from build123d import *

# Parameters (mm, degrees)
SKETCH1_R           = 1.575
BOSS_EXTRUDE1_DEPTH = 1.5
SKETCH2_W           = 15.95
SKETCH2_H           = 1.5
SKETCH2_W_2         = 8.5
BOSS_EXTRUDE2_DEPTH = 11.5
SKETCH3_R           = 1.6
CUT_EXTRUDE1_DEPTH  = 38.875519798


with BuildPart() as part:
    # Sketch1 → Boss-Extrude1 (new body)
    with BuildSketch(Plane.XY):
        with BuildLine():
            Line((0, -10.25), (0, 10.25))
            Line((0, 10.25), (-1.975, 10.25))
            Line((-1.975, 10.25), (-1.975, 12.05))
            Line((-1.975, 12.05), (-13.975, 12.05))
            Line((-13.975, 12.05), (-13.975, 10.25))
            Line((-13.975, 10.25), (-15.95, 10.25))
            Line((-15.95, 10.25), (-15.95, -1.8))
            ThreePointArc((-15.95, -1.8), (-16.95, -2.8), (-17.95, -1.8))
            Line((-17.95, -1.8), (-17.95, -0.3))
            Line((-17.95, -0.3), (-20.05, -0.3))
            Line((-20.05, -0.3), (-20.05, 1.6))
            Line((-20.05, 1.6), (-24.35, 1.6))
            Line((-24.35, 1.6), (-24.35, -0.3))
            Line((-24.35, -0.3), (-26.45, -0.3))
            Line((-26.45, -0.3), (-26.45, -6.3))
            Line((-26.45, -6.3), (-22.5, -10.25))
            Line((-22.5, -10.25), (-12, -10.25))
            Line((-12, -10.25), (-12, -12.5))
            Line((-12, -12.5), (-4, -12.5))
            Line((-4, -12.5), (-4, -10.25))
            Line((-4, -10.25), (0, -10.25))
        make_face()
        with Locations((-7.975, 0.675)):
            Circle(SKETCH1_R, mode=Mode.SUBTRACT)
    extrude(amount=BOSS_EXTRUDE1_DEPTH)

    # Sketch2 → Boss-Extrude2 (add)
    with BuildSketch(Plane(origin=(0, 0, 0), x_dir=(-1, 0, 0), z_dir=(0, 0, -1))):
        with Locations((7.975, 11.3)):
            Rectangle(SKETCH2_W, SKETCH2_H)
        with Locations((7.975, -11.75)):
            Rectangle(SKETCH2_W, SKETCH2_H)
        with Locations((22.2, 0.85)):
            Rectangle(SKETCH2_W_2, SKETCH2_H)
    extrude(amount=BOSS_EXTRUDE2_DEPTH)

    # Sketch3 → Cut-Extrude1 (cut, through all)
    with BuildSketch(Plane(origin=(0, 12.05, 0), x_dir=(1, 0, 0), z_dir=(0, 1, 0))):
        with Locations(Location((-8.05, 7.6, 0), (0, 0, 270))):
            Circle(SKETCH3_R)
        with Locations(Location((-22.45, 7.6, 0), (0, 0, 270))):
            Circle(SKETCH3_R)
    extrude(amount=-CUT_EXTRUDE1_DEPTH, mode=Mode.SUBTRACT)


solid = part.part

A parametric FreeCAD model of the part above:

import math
import FreeCAD as App
import Part
import Sketcher
Q = App.Units.Quantity

doc = App.newDocument("Part")
params = doc.addObject("Spreadsheet::Sheet", "Params")
for row, (alias, value) in enumerate([
    ("sketch1_radius", "1 mm"),
    ("sketch1_diameter", "3.15 mm"),
    ("sketch1_width", "12 mm"),
    ("sketch1_width2", "8 mm"),
    ("sketch1_width3", "4 mm"),
    ("pad1_length", "1.5 mm"),
    ("sketch2_width", "8.5 mm"),
    ("sketch2_height", "1.5 mm"),
    ("sketch2_width2", "15.95 mm"),
    ("pad2_length", "11.5 mm"),
    ("sketch3_diameter", "3.2 mm"),
], start=1):
    params.set(f"A{row}", alias)
    params.set(f"B{row}", "=" + value)
    params.setAlias(f"B{row}", alias)

body = doc.addObject("PartDesign::Body", "Body")

sketch1 = body.newObject("Sketcher::SketchObject", "Sketch")
sketch1.AttachmentSupport = (doc.getObject("XY_Plane"), [""])
sketch1.MapMode = "FlatFace"
sketch1.addGeometry([
    Part.LineSegment(App.Vector(0, -10.25, 0), App.Vector(0, 10.25, 0)),
    Part.LineSegment(App.Vector(0, 10.25, 0), App.Vector(-1.975, 10.25, 0)),
    Part.LineSegment(App.Vector(-1.975, 10.25, 0), App.Vector(-1.975, 12.05, 0)),
    Part.LineSegment(App.Vector(-1.975, 12.05, 0), App.Vector(-13.975, 12.05, 0)),
    Part.LineSegment(App.Vector(-13.975, 12.05, 0), App.Vector(-13.975, 10.25, 0)),
    Part.LineSegment(App.Vector(-13.975, 10.25, 0), App.Vector(-15.95, 10.25, 0)),
    Part.LineSegment(App.Vector(-15.95, 10.25, 0), App.Vector(-15.95, -1.8, 0)),
    Part.ArcOfCircle(Part.Circle(App.Vector(-16.95, -1.8, 0), App.Vector(0, 0, 1), 1), math.radians(180), math.radians(360)),
    Part.LineSegment(App.Vector(-17.95, -1.8, 0), App.Vector(-17.95, -0.3, 0)),
    Part.LineSegment(App.Vector(-17.95, -0.3, 0), App.Vector(-20.05, -0.3, 0)),
    Part.LineSegment(App.Vector(-20.05, -0.3, 0), App.Vector(-20.05, 1.6, 0)),
    Part.LineSegment(App.Vector(-20.05, 1.6, 0), App.Vector(-24.35, 1.6, 0)),
    Part.LineSegment(App.Vector(-24.35, 1.6, 0), App.Vector(-24.35, -0.3, 0)),
    Part.LineSegment(App.Vector(-24.35, -0.3, 0), App.Vector(-26.45, -0.3, 0)),
    Part.LineSegment(App.Vector(-26.45, -0.3, 0), App.Vector(-26.45, -6.3, 0)),
    Part.LineSegment(App.Vector(-26.45, -6.3, 0), App.Vector(-22.5, -10.25, 0)),
    Part.LineSegment(App.Vector(-22.5, -10.25, 0), App.Vector(-12, -10.25, 0)),
    Part.LineSegment(App.Vector(-12, -10.25, 0), App.Vector(-12, -12.5, 0)),
    Part.LineSegment(App.Vector(-12, -12.5, 0), App.Vector(-4, -12.5, 0)),
    Part.LineSegment(App.Vector(-4, -12.5, 0), App.Vector(-4, -10.25, 0)),
    Part.LineSegment(App.Vector(-4, -10.25, 0), App.Vector(0, -10.25, 0)),
    Part.Circle(App.Vector(-7.975, 0.675, 0), App.Vector(0, 0, 1), 1.575),
], False)
sketch1.addConstraint([
    Sketcher.Constraint("Coincident", 0, 2, 1, 1),
    Sketcher.Constraint("Coincident", 1, 2, 2, 1),
    Sketcher.Constraint("Coincident", 2, 2, 3, 1),
    Sketcher.Constraint("Coincident", 3, 2, 4, 1),
    Sketcher.Constraint("Coincident", 4, 2, 5, 1),
    Sketcher.Constraint("Coincident", 5, 2, 6, 1),
    Sketcher.Constraint("Tangent", 6, 2, 7, 2),
    Sketcher.Constraint("Tangent", 7, 1, 8, 1),
    Sketcher.Constraint("Coincident", 8, 2, 9, 1),
    Sketcher.Constraint("Coincident", 9, 2, 10, 1),
    Sketcher.Constraint("Coincident", 10, 2, 11, 1),
    Sketcher.Constraint("Coincident", 11, 2, 12, 1),
    Sketcher.Constraint("Coincident", 12, 2, 13, 1),
    Sketcher.Constraint("Coincident", 13, 2, 14, 1),
    Sketcher.Constraint("Coincident", 14, 2, 15, 1),
    Sketcher.Constraint("Coincident", 15, 2, 16, 1),
    Sketcher.Constraint("Coincident", 16, 2, 17, 1),
    Sketcher.Constraint("Coincident", 17, 2, 18, 1),
    Sketcher.Constraint("Coincident", 18, 2, 19, 1),
    Sketcher.Constraint("Coincident", 19, 2, 20, 1),
    Sketcher.Constraint("Coincident", 20, 2, 0, 1),
    Sketcher.Constraint("Vertical", 0),
    Sketcher.Constraint("Horizontal", 1),
    Sketcher.Constraint("Vertical", 2),
    Sketcher.Constraint("Horizontal", 3),
    Sketcher.Constraint("Vertical", 4),
    Sketcher.Constraint("Horizontal", 5),
    Sketcher.Constraint("Vertical", 6),
    Sketcher.Constraint("Vertical", 8),
    Sketcher.Constraint("Horizontal", 9),
    Sketcher.Constraint("Vertical", 10),
    Sketcher.Constraint("Horizontal", 11),
    Sketcher.Constraint("Vertical", 12),
    Sketcher.Constraint("Horizontal", 13),
    Sketcher.Constraint("Vertical", 14),
    Sketcher.Constraint("Horizontal", 16),
    Sketcher.Constraint("Vertical", 17),
    Sketcher.Constraint("Horizontal", 18),
    Sketcher.Constraint("Vertical", 19),
    Sketcher.Constraint("Horizontal", 20),
    Sketcher.Constraint("Symmetric", 0, 2, 20, 2, -1, 1),
    Sketcher.Constraint("Horizontal", 1, 2, 4, 2),
    Sketcher.Constraint("Horizontal", 9, 2, 12, 2),
    Sketcher.Constraint("Horizontal", 16, 2, 19, 2),
    Sketcher.Constraint("Equal", 1, 5),
    Sketcher.Constraint("Equal", 9, 13),
    Sketcher.Constraint("Radius", 7, 1.0),
    Sketcher.Constraint("Diameter", 21, 3.15),
    Sketcher.Constraint("DistanceX", 3, 2, 3, 1, 12.0),
    Sketcher.Constraint("DistanceX", 18, 1, 18, 2, 8.0),
    Sketcher.Constraint("DistanceX", 20, 1, 20, 2, 4.0),
    Sketcher.Constraint("DistanceY", 14, 2, 14, 1, 6.0),
    Sketcher.Constraint("Angle", 15, Q("-45 deg")),
    Sketcher.Constraint("DistanceX", 9, 2, 9, 1, 2.1),
    Sketcher.Constraint("DistanceX", 11, 2, 11, 1, 4.3),
    Sketcher.Constraint("DistanceX", 16, 1, 16, 2, 10.5),
    Sketcher.Constraint("DistanceY", 0, 1, 0, 2, 20.5),
    Sketcher.Constraint("DistanceY", 2, 1, 2, 2, 1.8),
    Sketcher.Constraint("DistanceY", 8, 1, 8, 2, 1.5),
    Sketcher.Constraint("DistanceY", 10, 1, 10, 2, 1.9),
    Sketcher.Constraint("DistanceX", 21, 3, 1, 2, 6.0),
    Sketcher.Constraint("DistanceY", 6, 2, 6, 1, 12.05),
    Sketcher.Constraint("DistanceY", 17, 2, 17, 1, 2.25),
    Sketcher.Constraint("DistanceY", -1, 1, 21, 3, 0.675),
])
sketch1.setExpression("Constraints[46]", "Params.sketch1_radius")
sketch1.setExpression("Constraints[47]", "Params.sketch1_diameter")
sketch1.setExpression("Constraints[48]", "Params.sketch1_width")
sketch1.setExpression("Constraints[49]", "Params.sketch1_width2")
sketch1.setExpression("Constraints[50]", "Params.sketch1_width3")
pad1 = body.newObject("PartDesign::Pad", "Pad")
pad1.Profile = sketch1
pad1.setExpression("Length", "Params.pad1_length")

sketch2 = body.newObject("Sketcher::SketchObject", "Sketch001")
sketch2.AttachmentSupport = (doc.getObject("XY_Plane"), [""])
sketch2.MapMode = "FlatFace"
sketch2.addGeometry([
    Part.LineSegment(App.Vector(0, 12.05, 0), App.Vector(0, 10.55, 0)),
    Part.LineSegment(App.Vector(0, 10.55, 0), App.Vector(-15.95, 10.55, 0)),
    Part.LineSegment(App.Vector(-15.95, 10.55, 0), App.Vector(-15.95, 12.05, 0)),
    Part.LineSegment(App.Vector(-15.95, 12.05, 0), App.Vector(0, 12.05, 0)),
    Part.LineSegment(App.Vector(0, -11, 0), App.Vector(0, -12.5, 0)),
    Part.LineSegment(App.Vector(0, -12.5, 0), App.Vector(-15.95, -12.5, 0)),
    Part.LineSegment(App.Vector(-15.95, -12.5, 0), App.Vector(-15.95, -11, 0)),
    Part.LineSegment(App.Vector(-15.95, -11, 0), App.Vector(0, -11, 0)),
    Part.LineSegment(App.Vector(-17.95, 1.6, 0), App.Vector(-17.95, 0.1, 0)),
    Part.LineSegment(App.Vector(-17.95, 0.1, 0), App.Vector(-26.45, 0.1, 0)),
    Part.LineSegment(App.Vector(-26.45, 0.1, 0), App.Vector(-26.45, 1.6, 0)),
    Part.LineSegment(App.Vector(-26.45, 1.6, 0), App.Vector(-17.95, 1.6, 0)),
], False)
sketch2.addConstraint([
    Sketcher.Constraint("Coincident", 0, 2, 1, 1),
    Sketcher.Constraint("Coincident", 1, 2, 2, 1),
    Sketcher.Constraint("Coincident", 2, 2, 3, 1),
    Sketcher.Constraint("Coincident", 3, 2, 0, 1),
    Sketcher.Constraint("Coincident", 4, 2, 5, 1),
    Sketcher.Constraint("Coincident", 5, 2, 6, 1),
    Sketcher.Constraint("Coincident", 6, 2, 7, 1),
    Sketcher.Constraint("Coincident", 7, 2, 4, 1),
    Sketcher.Constraint("Coincident", 8, 2, 9, 1),
    Sketcher.Constraint("Coincident", 9, 2, 10, 1),
    Sketcher.Constraint("Coincident", 10, 2, 11, 1),
    Sketcher.Constraint("Coincident", 11, 2, 8, 1),
    Sketcher.Constraint("Vertical", 0),
    Sketcher.Constraint("Horizontal", 1),
    Sketcher.Constraint("Vertical", 2),
    Sketcher.Constraint("Horizontal", 3),
    Sketcher.Constraint("Vertical", 4),
    Sketcher.Constraint("Horizontal", 5),
    Sketcher.Constraint("Vertical", 6),
    Sketcher.Constraint("Horizontal", 7),
    Sketcher.Constraint("Vertical", 8),
    Sketcher.Constraint("Horizontal", 9),
    Sketcher.Constraint("Vertical", 10),
    Sketcher.Constraint("Horizontal", 11),
    Sketcher.Constraint("PointOnObject", 0, 2, -2),
    Sketcher.Constraint("PointOnObject", 4, 2, -2),
    Sketcher.Constraint("Vertical", 2, 2, 5, 2),
    Sketcher.Constraint("Equal", 2, 4),
    Sketcher.Constraint("Equal", 6, 8),
    Sketcher.Constraint("DistanceX", 9, 2, 9, 1, 8.5),
    Sketcher.Constraint("DistanceY", 0, 2, 0, 1, 1.5),
    Sketcher.Constraint("DistanceY", 6, 2, -1, 1, 11.0),
    Sketcher.Constraint("DistanceX", 8, 2, 1, 2, 2.0),
    Sketcher.Constraint("DistanceX", 1, 2, 1, 1, 15.95),
    Sketcher.Constraint("DistanceY", -1, 1, 8, 2, 0.1),
    Sketcher.Constraint("DistanceY", -1, 1, 0, 2, 10.55),
])
sketch2.setExpression("Constraints[29]", "Params.sketch2_width")
sketch2.setExpression("Constraints[30]", "Params.sketch2_height")
sketch2.setExpression("Constraints[33]", "Params.sketch2_width2")
pad2 = body.newObject("PartDesign::Pad", "Pad001")
pad2.Profile = sketch2
pad2.setExpression("Length", "Params.pad2_length")
pad2.Reversed = True

sketch3 = body.newObject("Sketcher::SketchObject", "Sketch002")
sketch3.AttachmentSupport = (doc.getObject("XZ_Plane"), [""])
sketch3.MapMode = "FlatFace"
sketch3.AttachmentOffset = App.Placement(App.Vector(0, 0, -12.05), App.Rotation())
sketch3.addGeometry([
    Part.Circle(App.Vector(-8.05, -7.6, 0), App.Vector(0, 0, 1), 1.6),
    Part.Circle(App.Vector(-22.45, -7.6, 0), App.Vector(0, 0, 1), 1.6),
], False)
sketch3.addConstraint([
    Sketcher.Constraint("Equal", 0, 1),
    Sketcher.Constraint("Horizontal", 0, 3, 1, 3),
    Sketcher.Constraint("Diameter", 0, 3.2),
    Sketcher.Constraint("DistanceY", 0, 3, -1, 1, 7.6),
    Sketcher.Constraint("DistanceX", 1, 3, 0, 3, 14.4),
    Sketcher.Constraint("DistanceX", 0, 3, -1, 1, 8.05),
])
sketch3.setExpression("Constraints[2]", "Params.sketch3_diameter")
pocket1 = body.newObject("PartDesign::Pocket", "Pocket")
pocket1.Profile = sketch3
pocket1.Type = "ThroughAll"
pocket1.Reversed = True

doc.recompute()
